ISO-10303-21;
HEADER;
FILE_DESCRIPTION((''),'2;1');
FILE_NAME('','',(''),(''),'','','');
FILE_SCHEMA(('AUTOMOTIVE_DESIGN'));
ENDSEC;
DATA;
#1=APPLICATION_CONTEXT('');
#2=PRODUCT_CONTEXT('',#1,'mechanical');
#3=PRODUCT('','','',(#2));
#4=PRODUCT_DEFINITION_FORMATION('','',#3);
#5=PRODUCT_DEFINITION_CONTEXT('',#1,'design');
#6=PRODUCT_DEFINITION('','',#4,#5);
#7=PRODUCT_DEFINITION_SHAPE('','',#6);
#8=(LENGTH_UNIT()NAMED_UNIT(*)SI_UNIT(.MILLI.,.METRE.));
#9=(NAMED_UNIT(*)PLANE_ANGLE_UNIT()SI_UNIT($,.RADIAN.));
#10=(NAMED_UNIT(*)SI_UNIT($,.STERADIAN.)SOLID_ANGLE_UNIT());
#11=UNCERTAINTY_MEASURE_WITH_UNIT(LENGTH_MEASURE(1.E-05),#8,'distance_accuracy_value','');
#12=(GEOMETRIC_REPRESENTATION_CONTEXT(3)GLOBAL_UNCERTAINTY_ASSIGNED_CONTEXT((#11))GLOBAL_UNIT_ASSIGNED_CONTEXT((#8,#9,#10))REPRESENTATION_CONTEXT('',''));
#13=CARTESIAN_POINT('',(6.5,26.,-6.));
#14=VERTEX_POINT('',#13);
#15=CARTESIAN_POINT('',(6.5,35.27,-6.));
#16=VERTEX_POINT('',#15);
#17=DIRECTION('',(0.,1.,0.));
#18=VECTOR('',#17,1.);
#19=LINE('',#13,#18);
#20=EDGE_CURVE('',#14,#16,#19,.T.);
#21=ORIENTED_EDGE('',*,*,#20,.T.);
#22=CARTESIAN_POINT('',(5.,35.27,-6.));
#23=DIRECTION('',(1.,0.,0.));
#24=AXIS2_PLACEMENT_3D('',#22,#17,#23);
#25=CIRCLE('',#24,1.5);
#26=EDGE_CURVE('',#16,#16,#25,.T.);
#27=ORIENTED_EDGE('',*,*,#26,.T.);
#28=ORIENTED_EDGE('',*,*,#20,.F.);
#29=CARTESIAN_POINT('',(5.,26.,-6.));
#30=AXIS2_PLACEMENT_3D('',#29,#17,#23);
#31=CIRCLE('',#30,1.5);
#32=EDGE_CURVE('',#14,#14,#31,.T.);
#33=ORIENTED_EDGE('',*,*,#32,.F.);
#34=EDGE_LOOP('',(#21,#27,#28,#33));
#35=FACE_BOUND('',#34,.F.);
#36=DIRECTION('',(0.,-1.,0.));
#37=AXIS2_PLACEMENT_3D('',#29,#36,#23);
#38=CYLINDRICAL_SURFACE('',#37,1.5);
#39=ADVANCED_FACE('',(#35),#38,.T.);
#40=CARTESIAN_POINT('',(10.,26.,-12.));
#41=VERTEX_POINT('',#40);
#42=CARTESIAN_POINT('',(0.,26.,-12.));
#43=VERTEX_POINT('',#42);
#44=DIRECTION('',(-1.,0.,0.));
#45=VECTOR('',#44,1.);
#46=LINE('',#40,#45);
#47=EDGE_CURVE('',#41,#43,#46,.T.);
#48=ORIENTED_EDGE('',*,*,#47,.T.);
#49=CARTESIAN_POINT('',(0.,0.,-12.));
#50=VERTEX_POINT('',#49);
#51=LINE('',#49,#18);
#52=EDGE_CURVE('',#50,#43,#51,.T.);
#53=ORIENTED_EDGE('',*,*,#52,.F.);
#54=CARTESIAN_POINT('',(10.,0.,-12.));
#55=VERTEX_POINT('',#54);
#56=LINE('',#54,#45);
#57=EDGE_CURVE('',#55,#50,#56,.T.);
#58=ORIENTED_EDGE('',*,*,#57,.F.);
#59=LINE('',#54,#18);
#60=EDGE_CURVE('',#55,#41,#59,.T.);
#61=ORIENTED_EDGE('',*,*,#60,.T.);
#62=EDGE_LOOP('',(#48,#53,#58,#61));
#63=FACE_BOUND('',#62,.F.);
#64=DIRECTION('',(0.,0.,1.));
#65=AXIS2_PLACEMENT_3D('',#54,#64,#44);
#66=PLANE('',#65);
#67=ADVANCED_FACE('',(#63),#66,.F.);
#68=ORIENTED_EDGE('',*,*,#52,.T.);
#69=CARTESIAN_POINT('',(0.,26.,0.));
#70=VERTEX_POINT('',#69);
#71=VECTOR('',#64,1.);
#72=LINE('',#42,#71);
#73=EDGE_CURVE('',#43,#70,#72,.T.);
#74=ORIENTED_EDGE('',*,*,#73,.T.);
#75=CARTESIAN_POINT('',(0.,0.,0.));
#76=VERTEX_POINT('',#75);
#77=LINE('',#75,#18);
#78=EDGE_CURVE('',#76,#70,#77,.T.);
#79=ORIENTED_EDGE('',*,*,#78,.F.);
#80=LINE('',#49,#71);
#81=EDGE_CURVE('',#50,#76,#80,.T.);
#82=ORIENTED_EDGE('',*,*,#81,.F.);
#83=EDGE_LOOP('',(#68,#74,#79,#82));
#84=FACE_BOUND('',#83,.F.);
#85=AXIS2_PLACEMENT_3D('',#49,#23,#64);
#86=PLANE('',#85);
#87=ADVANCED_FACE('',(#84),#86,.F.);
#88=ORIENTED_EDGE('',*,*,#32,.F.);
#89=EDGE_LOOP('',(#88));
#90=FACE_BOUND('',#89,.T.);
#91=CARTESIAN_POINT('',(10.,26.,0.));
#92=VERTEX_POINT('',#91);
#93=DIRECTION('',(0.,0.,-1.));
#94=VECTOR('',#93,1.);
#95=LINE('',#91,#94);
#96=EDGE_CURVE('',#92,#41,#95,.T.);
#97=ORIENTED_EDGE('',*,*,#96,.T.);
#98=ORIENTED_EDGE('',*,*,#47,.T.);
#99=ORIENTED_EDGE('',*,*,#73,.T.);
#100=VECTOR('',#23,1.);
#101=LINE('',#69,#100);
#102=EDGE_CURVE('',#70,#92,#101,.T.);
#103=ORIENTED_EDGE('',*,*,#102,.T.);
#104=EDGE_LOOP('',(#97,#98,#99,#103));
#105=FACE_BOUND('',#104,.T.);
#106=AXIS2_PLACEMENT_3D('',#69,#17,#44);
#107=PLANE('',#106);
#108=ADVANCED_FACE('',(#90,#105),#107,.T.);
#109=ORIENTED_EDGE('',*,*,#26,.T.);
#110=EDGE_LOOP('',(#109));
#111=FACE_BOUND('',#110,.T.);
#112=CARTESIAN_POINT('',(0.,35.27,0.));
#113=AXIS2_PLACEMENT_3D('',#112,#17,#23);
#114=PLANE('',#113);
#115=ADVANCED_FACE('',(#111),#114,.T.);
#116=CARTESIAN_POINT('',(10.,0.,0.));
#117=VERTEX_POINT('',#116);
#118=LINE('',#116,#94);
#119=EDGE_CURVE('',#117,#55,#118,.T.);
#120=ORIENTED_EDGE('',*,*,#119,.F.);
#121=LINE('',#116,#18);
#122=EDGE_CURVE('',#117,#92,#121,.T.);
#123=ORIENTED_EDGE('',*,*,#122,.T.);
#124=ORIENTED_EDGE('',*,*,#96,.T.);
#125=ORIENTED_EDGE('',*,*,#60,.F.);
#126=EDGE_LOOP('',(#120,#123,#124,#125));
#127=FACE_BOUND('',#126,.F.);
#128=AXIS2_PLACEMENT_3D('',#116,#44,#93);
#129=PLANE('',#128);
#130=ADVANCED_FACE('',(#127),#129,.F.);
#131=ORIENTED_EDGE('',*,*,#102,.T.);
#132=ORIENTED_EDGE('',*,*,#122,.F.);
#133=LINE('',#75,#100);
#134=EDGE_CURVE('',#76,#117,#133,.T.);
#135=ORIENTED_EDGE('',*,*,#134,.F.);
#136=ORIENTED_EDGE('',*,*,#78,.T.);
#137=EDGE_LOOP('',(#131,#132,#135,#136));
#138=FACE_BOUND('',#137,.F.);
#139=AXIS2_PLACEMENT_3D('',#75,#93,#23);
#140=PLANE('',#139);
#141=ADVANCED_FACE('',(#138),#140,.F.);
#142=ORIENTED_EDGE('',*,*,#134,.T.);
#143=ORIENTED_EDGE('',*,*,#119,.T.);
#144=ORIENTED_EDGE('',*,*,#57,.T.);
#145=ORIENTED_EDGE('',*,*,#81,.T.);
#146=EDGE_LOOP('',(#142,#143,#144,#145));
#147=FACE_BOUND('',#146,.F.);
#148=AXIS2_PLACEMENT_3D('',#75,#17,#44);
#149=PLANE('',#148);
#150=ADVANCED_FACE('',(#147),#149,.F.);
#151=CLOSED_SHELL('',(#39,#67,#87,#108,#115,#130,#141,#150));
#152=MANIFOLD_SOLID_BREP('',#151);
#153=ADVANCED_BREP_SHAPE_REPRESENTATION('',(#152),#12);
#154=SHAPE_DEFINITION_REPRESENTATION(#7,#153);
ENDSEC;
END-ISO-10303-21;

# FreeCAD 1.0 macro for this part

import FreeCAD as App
import Part
import Sketcher
from FreeCAD import Vector
Q = App.Units.Quantity


def add_polygon(sketch, points):
    """Adds a closed chain of lines whose ends are joined by coincident constraints."""
    first, n = sketch.GeometryCount, len(points)
    for a, b in zip(points, points[1:] + points[:1]):
        sketch.addGeometry(Part.LineSegment(App.Vector(*a, 0), App.Vector(*b, 0)), False)
    for i in range(n):
        sketch.addConstraint(Sketcher.Constraint("Coincident", first + i, 2, first + (i + 1) % n, 1))

doc = App.newDocument("Part")
body = doc.addObject("PartDesign::Body", "Body")

# Sketch on XZ plane
sketch1 = doc.addObject("Sketcher::SketchObject", "Sketch")
body.addObject(sketch1)
sketch1.AttachmentSupport = (doc.XZ_Plane, [""])
sketch1.MapMode = "FlatFace"
add_polygon(sketch1, [(0, -12), (0, 0), (10, 0), (10, -12)])  # lines 0-3
sketch1.addConstraint(Sketcher.Constraint("Vertical", 0))
sketch1.addConstraint(Sketcher.Constraint("Horizontal", 1))
sketch1.addConstraint(Sketcher.Constraint("Vertical", 2))
sketch1.addConstraint(Sketcher.Constraint("Horizontal", 3))
sketch1.addConstraint(Sketcher.Constraint("Coincident", 0, 2, -1, 1))
sketch1.addConstraint(Sketcher.Constraint("DistanceX", 1, 1, 1, 2, Q("10 mm")))
sketch1.addConstraint(Sketcher.Constraint("DistanceY", 0, 1, 0, 2, Q("12 mm")))
pad1 = doc.addObject("PartDesign::Pad", "Pad")
body.addObject(pad1)
pad1.Profile = sketch1
pad1.Length = 26
pad1.Reversed = True

# Sketch on XZ plane
sketch2 = doc.addObject("Sketcher::SketchObject", "Sketch001")
body.addObject(sketch2)
sketch2.AttachmentSupport = (doc.XZ_Plane, [""])
sketch2.MapMode = "FlatFace"
sketch2.AttachmentOffset = App.Placement(Vector(0, 0, -26), App.Rotation())
sketch2.addGeometry(Part.Circle(Vector(5, -6, 0), Vector(0, 0, 1), 1.5), False)
sketch2.addConstraint(Sketcher.Constraint("Diameter", 0, Q("3 mm")))
sketch2.addConstraint(Sketcher.Constraint("DistanceX", -1, 1, 0, 3, Q("5 mm")))
sketch2.addConstraint(Sketcher.Constraint("DistanceY", 0, 3, -1, 1, Q("6 mm")))
pad2 = doc.addObject("PartDesign::Pad", "Pad001")
body.addObject(pad2)
pad2.Profile = sketch2
pad2.Length = 9.27
pad2.Reversed = True

doc.recompute()
